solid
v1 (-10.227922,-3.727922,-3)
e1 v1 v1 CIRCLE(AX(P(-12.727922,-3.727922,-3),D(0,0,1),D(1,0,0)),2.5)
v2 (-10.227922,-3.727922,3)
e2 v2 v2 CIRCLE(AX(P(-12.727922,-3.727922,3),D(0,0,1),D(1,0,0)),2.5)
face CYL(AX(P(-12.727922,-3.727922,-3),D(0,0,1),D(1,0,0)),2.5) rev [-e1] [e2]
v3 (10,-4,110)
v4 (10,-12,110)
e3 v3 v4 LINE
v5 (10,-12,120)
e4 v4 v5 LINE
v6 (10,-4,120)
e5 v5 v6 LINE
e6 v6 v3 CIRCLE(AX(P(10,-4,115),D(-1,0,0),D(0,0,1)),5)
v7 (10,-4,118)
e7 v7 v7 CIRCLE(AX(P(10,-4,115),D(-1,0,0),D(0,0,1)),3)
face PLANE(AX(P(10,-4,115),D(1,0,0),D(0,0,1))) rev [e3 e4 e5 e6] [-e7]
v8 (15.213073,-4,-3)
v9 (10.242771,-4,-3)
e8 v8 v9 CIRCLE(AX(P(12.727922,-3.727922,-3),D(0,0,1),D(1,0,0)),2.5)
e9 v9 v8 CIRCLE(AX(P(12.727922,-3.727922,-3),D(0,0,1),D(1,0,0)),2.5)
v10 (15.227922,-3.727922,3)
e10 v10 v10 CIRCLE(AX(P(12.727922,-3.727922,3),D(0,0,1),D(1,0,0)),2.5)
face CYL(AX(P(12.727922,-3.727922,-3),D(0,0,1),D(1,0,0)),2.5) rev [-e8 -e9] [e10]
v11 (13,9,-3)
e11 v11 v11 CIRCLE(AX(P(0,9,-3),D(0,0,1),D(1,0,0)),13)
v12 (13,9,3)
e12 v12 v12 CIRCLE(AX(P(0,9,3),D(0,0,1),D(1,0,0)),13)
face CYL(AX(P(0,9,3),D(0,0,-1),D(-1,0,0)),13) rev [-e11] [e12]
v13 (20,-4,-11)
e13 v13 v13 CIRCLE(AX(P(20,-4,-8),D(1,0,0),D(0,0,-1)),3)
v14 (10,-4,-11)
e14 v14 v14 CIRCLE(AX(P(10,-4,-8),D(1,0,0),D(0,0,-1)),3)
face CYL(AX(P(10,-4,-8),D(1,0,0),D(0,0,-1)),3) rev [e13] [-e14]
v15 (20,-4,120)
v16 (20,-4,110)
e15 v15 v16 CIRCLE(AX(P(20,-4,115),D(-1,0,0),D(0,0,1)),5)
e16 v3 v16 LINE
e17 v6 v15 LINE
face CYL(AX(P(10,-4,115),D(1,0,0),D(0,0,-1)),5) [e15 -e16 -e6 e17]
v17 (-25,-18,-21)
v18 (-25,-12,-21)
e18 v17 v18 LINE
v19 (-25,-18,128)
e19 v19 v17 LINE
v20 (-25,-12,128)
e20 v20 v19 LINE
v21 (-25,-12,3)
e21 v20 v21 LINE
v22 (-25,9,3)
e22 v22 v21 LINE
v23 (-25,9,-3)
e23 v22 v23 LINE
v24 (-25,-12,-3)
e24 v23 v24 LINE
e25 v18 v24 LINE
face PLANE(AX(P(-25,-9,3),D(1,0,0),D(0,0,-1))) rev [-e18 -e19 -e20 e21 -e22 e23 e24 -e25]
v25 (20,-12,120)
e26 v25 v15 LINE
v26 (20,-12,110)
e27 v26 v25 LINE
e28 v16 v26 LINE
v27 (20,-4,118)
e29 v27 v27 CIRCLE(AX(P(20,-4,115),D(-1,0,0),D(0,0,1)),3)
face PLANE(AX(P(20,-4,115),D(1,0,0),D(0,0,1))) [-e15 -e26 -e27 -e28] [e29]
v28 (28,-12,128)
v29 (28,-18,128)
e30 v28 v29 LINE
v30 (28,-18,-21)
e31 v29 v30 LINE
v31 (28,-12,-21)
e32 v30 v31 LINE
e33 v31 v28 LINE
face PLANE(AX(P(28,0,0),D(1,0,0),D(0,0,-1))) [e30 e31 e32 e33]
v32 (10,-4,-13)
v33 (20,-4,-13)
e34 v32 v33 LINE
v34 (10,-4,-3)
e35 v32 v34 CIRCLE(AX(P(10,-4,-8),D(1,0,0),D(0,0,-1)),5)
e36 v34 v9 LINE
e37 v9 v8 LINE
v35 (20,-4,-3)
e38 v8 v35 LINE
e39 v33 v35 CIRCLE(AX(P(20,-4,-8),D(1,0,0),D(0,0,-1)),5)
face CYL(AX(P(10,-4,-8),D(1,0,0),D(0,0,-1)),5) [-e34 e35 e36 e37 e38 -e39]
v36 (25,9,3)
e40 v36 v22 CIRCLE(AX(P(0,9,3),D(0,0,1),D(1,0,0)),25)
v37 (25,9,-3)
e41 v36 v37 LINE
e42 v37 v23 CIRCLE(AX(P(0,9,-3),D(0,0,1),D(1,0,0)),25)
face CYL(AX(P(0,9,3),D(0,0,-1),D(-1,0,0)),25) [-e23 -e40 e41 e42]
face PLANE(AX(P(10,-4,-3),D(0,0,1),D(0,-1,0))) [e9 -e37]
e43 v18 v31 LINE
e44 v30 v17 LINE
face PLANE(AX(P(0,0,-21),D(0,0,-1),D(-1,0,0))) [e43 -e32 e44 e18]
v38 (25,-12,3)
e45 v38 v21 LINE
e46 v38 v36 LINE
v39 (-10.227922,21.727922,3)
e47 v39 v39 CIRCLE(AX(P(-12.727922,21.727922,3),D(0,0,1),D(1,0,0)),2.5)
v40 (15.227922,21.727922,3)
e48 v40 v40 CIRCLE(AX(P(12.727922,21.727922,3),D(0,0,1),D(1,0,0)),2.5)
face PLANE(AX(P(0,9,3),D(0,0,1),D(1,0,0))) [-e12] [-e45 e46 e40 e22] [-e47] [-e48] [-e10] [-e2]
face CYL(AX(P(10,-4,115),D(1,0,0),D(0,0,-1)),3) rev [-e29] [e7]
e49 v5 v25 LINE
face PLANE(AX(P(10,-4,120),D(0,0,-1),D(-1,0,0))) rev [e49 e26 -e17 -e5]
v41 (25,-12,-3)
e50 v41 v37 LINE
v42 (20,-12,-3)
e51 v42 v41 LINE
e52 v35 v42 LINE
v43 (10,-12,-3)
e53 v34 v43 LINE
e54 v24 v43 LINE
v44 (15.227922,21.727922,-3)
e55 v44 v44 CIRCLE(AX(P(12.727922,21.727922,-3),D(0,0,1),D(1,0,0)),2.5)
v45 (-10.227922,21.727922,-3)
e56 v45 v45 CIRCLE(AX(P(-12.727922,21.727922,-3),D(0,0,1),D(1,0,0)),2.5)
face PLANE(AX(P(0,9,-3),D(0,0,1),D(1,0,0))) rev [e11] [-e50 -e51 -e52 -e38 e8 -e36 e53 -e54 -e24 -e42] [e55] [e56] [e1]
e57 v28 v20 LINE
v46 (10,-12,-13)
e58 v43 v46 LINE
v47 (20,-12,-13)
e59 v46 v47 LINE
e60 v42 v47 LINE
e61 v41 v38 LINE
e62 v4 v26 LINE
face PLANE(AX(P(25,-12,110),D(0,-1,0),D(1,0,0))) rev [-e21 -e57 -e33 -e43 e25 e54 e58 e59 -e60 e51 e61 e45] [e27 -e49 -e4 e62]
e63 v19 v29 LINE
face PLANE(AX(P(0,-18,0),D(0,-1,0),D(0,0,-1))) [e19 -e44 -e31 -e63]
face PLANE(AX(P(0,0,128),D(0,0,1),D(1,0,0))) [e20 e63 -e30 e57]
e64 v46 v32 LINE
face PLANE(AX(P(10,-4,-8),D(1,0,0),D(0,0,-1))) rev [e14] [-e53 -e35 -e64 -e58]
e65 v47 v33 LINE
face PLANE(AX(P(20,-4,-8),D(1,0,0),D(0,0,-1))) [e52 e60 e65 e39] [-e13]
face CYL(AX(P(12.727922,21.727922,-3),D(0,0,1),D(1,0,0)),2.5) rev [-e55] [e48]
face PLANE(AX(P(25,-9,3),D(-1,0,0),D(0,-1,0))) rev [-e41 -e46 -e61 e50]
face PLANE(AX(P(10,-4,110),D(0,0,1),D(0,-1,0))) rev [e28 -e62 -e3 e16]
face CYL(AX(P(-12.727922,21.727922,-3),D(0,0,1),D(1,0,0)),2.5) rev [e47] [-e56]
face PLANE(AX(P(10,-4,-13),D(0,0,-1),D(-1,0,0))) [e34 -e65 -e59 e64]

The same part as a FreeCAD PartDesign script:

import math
import FreeCAD as App
import Part
import Sketcher

doc = App.newDocument("Part")
body = doc.addObject("PartDesign::Body", "Body")

# Sketch on XY plane
sketch1 = body.newObject("Sketcher::SketchObject", "Sketch")
sketch1.AttachmentSupport = (doc.getObject("XY_Plane"), [""])
sketch1.MapMode = "FlatFace"
sketch1.addGeometry([
    Part.LineSegment(App.Vector(-25, -9, 0), App.Vector(25, -9, 0)),  # 0
    Part.LineSegment(App.Vector(25, -9, 0), App.Vector(25, 9, 0)),  # 1
    Part.ArcOfCircle(Part.Circle(App.Vector(0, 9, 0), App.Vector(0, 0, 1), 25), math.radians(0), math.radians(180)),  # 2
    Part.LineSegment(App.Vector(-25, 9, 0), App.Vector(-25, -9, 0)),  # 3
    Part.Circle(App.Vector(0, 9, 0), App.Vector(0, 0, 1), 13),  # 4
], False)
sketch1.addConstraint([
    Sketcher.Constraint("Coincident", 0, 2, 1, 1),
    Sketcher.Constraint("Tangent", 1, 2, 2, 1),
    Sketcher.Constraint("Tangent", 2, 2, 3, 1),
    Sketcher.Constraint("Coincident", 3, 2, 0, 1),
    Sketcher.Constraint("Horizontal", 0),
    Sketcher.Constraint("Vertical", 1),
    Sketcher.Constraint("Vertical", 3),
    Sketcher.Constraint("Coincident", 4, 3, 2, 3),
    Sketcher.Constraint("Symmetric", 0, 2, 2, 2, -1, 1),
    Sketcher.Constraint("Diameter", 4, 26.0),
    Sketcher.Constraint("Radius", 2, 25.0),
    Sketcher.Constraint("DistanceY", 1, 1, 1, 2, 18.0),
])
pad1 = body.newObject("PartDesign::Pad", "Pad")
pad1.Profile = sketch1
pad1.Length = 6
pad1.Midplane = True

# Sketch on XZ plane
sketch2 = body.newObject("Sketcher::SketchObject", "Sketch001")
sketch2.AttachmentSupport = (doc.getObject("XZ_Plane"), [""])
sketch2.MapMode = "FlatFace"
sketch2.AttachmentOffset = App.Placement(App.Vector(0, 0, 9), App.Rotation())
sketch2.addGeometry([
    Part.LineSegment(App.Vector(-25, 3, 0), App.Vector(-25, -3, 0)),
    Part.LineSegment(App.Vector(-25, -3, 0), App.Vector(25, -3, 0)),
    Part.LineSegment(App.Vector(25, -3, 0), App.Vector(25, 3, 0)),
    Part.LineSegment(App.Vector(25, 3, 0), App.Vector(-25, 3, 0)),
], False)
sketch2.addConstraint([
    Sketcher.Constraint("Coincident", 0, 2, 1, 1),
    Sketcher.Constraint("Coincident", 1, 2, 2, 1),
    Sketcher.Constraint("Coincident", 2, 2, 3, 1),
    Sketcher.Constraint("Coincident", 3, 2, 0, 1),
    Sketcher.Constraint("Vertical", 0),
    Sketcher.Constraint("Horizontal", 1),
    Sketcher.Constraint("Vertical", 2),
    Sketcher.Constraint("Horizontal", 3),
    Sketcher.Constraint("Symmetric", 0, 2, 2, 2, -1, 1),
    Sketcher.Constraint("DistanceX", 1, 1, 1, 2, 50.0),
    Sketcher.Constraint("DistanceY", 0, 2, 0, 1, 6.0),
])
pad2 = body.newObject("PartDesign::Pad", "Pad001")
pad2.Profile = sketch2
pad2.Length = 9
body2 = doc.addObject("PartDesign::Body", "Body001")

# Sketch on XY plane
sketch3 = body2.newObject("Sketcher::SketchObject", "Sketch002")
sketch3.AttachmentSupport = (doc.getObject("XY_Plane001"), [""])
sketch3.MapMode = "FlatFace"
sketch3.AttachmentOffset = App.Placement(App.Vector(0, 0, 3), App.Rotation())
sketch3.addGeometry([
    Part.LineSegment(App.Vector(-25, -12, 0), App.Vector(-25, -18, 0)),
    Part.LineSegment(App.Vector(-25, -18, 0), App.Vector(25, -18, 0)),
    Part.LineSegment(App.Vector(25, -18, 0), App.Vector(25, -12, 0)),
    Part.LineSegment(App.Vector(25, -12, 0), App.Vector(-25, -12, 0)),
], False)
sketch3.addConstraint([
    Sketcher.Constraint("Coincident", 0, 2, 1, 1),
    Sketcher.Constraint("Coincident", 1, 2, 2, 1),
    Sketcher.Constraint("Coincident", 2, 2, 3, 1),
    Sketcher.Constraint("Coincident", 3, 2, 0, 1),
    Sketcher.Constraint("Vertical", 0),
    Sketcher.Constraint("Horizontal", 1),
    Sketcher.Constraint("Vertical", 2),
    Sketcher.Constraint("Horizontal", 3),
    Sketcher.Constraint("DistanceX", 1, 1, 1, 2, 50.0),
    Sketcher.Constraint("DistanceY", 0, 2, 0, 1, 6.0),
    Sketcher.Constraint("DistanceX", 0, 2, -1, 1, 25.0),
    Sketcher.Constraint("DistanceY", 0, 2, -1, 1, 18.0),
])
pad3 = body2.newObject("PartDesign::Pad", "Pad002")
pad3.Profile = sketch3
pad3.Length = 107
doc.recompute()

boolean = body.newObject("PartDesign::Boolean", "Boolean")
boolean.Type = "Fuse"
boolean.addObjects([body2])

# Sketch on XY plane
sketch4 = body.newObject("Sketcher::SketchObject", "Sketch003")
sketch4.AttachmentSupport = (doc.getObject("XY_Plane"), [""])
sketch4.MapMode = "FlatFace"
sketch4.AttachmentOffset = App.Placement(App.Vector(0, 0, 3), App.Rotation())
sketch4.addGeometry([
    Part.LineSegment(App.Vector(25, -12, 0), App.Vector(25, -18, 0)),
    Part.LineSegment(App.Vector(25, -18, 0), App.Vector(-25, -18, 0)),
    Part.LineSegment(App.Vector(-25, -18, 0), App.Vector(-25, -12, 0)),
    Part.LineSegment(App.Vector(-25, -12, 0), App.Vector(25, -12, 0)),
], False)
sketch4.addConstraint([
    Sketcher.Constraint("Coincident", 0, 2, 1, 1),
    Sketcher.Constraint("Coincident", 1, 2, 2, 1),
    Sketcher.Constraint("Coincident", 2, 2, 3, 1),
    Sketcher.Constraint("Coincident", 3, 2, 0, 1),
    Sketcher.Constraint("Vertical", 0),
    Sketcher.Constraint("Horizontal", 1),
    Sketcher.Constraint("Vertical", 2),
    Sketcher.Constraint("Horizontal", 3),
    Sketcher.Constraint("DistanceX", 1, 2, 1, 1, 50.0),
    Sketcher.Constraint("DistanceY", 0, 2, 0, 1, 6.0),
    Sketcher.Constraint("DistanceX", -1, 1, 0, 2, 25.0),
    Sketcher.Constraint("DistanceY", 0, 2, -1, 1, 18.0),
])
pad4 = body.newObject("PartDesign::Pad", "Pad003")
pad4.Profile = sketch4
pad4.Length = 6
pad4.Reversed = True

# Sketch on XY plane
sketch5 = body.newObject("Sketcher::SketchObject", "Sketch004")
sketch5.AttachmentSupport = (doc.getObject("XY_Plane"), [""])
sketch5.MapMode = "FlatFace"
sketch5.AttachmentOffset = App.Placement(App.Vector(0, 0, 3), App.Rotation())
sketch5.addGeometry([
    Part.Circle(App.Vector(12.7, 21.7, 0), App.Vector(0, 0, 1), 2.5),
    Part.Circle(App.Vector(12.7, -3.7, 0), App.Vector(0, 0, 1), 2.5),
    Part.Circle(App.Vector(-12.7, -3.7, 0), App.Vector(0, 0, 1), 2.5),
    Part.Circle(App.Vector(-12.7, 21.7, 0), App.Vector(0, 0, 1), 2.5),
], False)
sketch5.addConstraint([
    Sketcher.Constraint("Equal", 0, 1),
    Sketcher.Constraint("Equal", 1, 2),
    Sketcher.Constraint("Equal", 2, 3),
    Sketcher.Constraint("Symmetric", 1, 3, 2, 3, -2),
    Sketcher.Constraint("Symmetric", 0, 3, 3, 3, -2),
    Sketcher.Constraint("Vertical", 0, 3, 1, 3),
    Sketcher.Constraint("Diameter", 0, 5.0),
    Sketcher.Constraint("DistanceX", -1, 1, 0, 3, 12.727922),
    Sketcher.Constraint("DistanceY", -1, 1, 0, 3, 21.727922),
    Sketcher.Constraint("DistanceY", 1, 3, -1, 1, 3.727922),
])
pocket1 = body.newObject("PartDesign::Pocket", "Pocket")
pocket1.Profile = sketch5
pocket1.Type = "ThroughAll"

# Sketch on XY plane
sketch6 = body.newObject("Sketcher::SketchObject", "Sketch005")
sketch6.AttachmentSupport = (doc.getObject("XY_Plane"), [""])
sketch6.MapMode = "FlatFace"
sketch6.AttachmentOffset = App.Placement(App.Vector(0, 0, 110), App.Rotation())
sketch6.addGeometry([
    Part.LineSegment(App.Vector(-25, -12, 0), App.Vector(-25, -18, 0)),
    Part.LineSegment(App.Vector(-25, -18, 0), App.Vector(25, -18, 0)),
    Part.LineSegment(App.Vector(25, -18, 0), App.Vector(25, -12, 0)),
    Part.LineSegment(App.Vector(25, -12, 0), App.Vector(-25, -12, 0)),
], False)
sketch6.addConstraint([
    Sketcher.Constraint("Coincident", 0, 2, 1, 1),
    Sketcher.Constraint("Coincident", 1, 2, 2, 1),
    Sketcher.Constraint("Coincident", 2, 2, 3, 1),
    Sketcher.Constraint("Coincident", 3, 2, 0, 1),
    Sketcher.Constraint("Vertical", 0),
    Sketcher.Constraint("Horizontal", 1),
    Sketcher.Constraint("Vertical", 2),
    Sketcher.Constraint("Horizontal", 3),
    Sketcher.Constraint("DistanceX", 1, 1, 1, 2, 50.0),
    Sketcher.Constraint("DistanceY", 0, 2, 0, 1, 6.0),
    Sketcher.Constraint("DistanceX", 0, 2, -1, 1, 25.0),
    Sketcher.Constraint("DistanceY", 0, 2, -1, 1, 18.0),
])
pad5 = body.newObject("PartDesign::Pad", "Pad004")
pad5.Profile = sketch6
pad5.Length = 18

# Sketch on XY plane
sketch7 = body.newObject("Sketcher::SketchObject", "Sketch006")
sketch7.AttachmentSupport = (doc.getObject("XY_Plane"), [""])
sketch7.MapMode = "FlatFace"
sketch7.AttachmentOffset = App.Placement(App.Vector(0, 0, -3), App.Rotation())
sketch7.addGeometry([
    Part.LineSegment(App.Vector(25, -12, 0), App.Vector(25, -18, 0)),
    Part.LineSegment(App.Vector(25, -18, 0), App.Vector(-25, -18, 0)),
    Part.LineSegment(App.Vector(-25, -18, 0), App.Vector(-25, -12, 0)),
    Part.LineSegment(App.Vector(-25, -12, 0), App.Vector(25, -12, 0)),
], False)
sketch7.addConstraint([
    Sketcher.Constraint("Coincident", 0, 2, 1, 1),
    Sketcher.Constraint("Coincident", 1, 2, 2, 1),
    Sketcher.Constraint("Coincident", 2, 2, 3, 1),
    Sketcher.Constraint("Coincident", 3, 2, 0, 1),
    Sketcher.Constraint("Vertical", 0),
    Sketcher.Constraint("Horizontal", 1),
    Sketcher.Constraint("Vertical", 2),
    Sketcher.Constraint("Horizontal", 3),
    Sketcher.Constraint("DistanceX", 1, 2, 1, 1, 50.0),
    Sketcher.Constraint("DistanceY", 0, 2, 0, 1, 6.0),
    Sketcher.Constraint("DistanceX", -1, 1, 0, 2, 25.0),
    Sketcher.Constraint("DistanceY", 0, 2, -1, 1, 18.0),
])
pad6 = body.newObject("PartDesign::Pad", "Pad005")
pad6.Profile = sketch7
pad6.Length = 18
pad6.Reversed = True

# Sketch on YZ plane
sketch8 = body.newObject("Sketcher::SketchObject", "Sketch007")
sketch8.AttachmentSupport = (doc.getObject("YZ_Plane"), [""])
sketch8.MapMode = "FlatFace"
sketch8.AttachmentOffset = App.Placement(App.Vector(0, 0, 20), App.Rotation())
sketch8.addGeometry([
    Part.LineSegment(App.Vector(-4, -3, 0), App.Vector(-12, -3, 0)),  # 0
    Part.LineSegment(App.Vector(-12, -3, 0), App.Vector(-12, -13, 0)),  # 1
    Part.LineSegment(App.Vector(-12, -13, 0), App.Vector(-4, -13, 0)),  # 2
    Part.ArcOfCircle(Part.Circle(App.Vector(-4, -8, 0), App.Vector(0, 0, 1), 5), math.radians(-90), math.radians(90)),  # 3
    Part.Circle(App.Vector(-4, -8, 0), App.Vector(0, 0, 1), 3),  # 4
], False)
sketch8.addConstraint([
    Sketcher.Constraint("Coincident", 0, 2, 1, 1),
    Sketcher.Constraint("Coincident", 1, 2, 2, 1),
    Sketcher.Constraint("Tangent", 2, 2, 3, 1),
    Sketcher.Constraint("Tangent", 3, 2, 0, 1),
    Sketcher.Constraint("Horizontal", 0),
    Sketcher.Constraint("Vertical", 1),
    Sketcher.Constraint("Horizontal", 2),
    Sketcher.Constraint("Coincident", 4, 3, 3, 3),
    Sketcher.Constraint("Diameter", 4, 6.0),
    Sketcher.Constraint("Radius", 3, 5.0),
    Sketcher.Constraint("DistanceX", 0, 2, 0, 1, 8.0),
    Sketcher.Constraint("DistanceX", 3, 3, -1, 1, 4.0),
    Sketcher.Constraint("DistanceY", 3, 3, -1, 1, 8.0),
])
pad7 = body.newObject("PartDesign::Pad", "Pad006")
pad7.Profile = sketch8
pad7.Length = 10
pad7.Reversed = True
doc.recompute()

datumplane = body.newObject("PartDesign::Plane", "DatumPlane")
datumplane.AttachmentSupport = (doc.getObject("XY_Plane"), [""])
datumplane.MapMode = "FlatFace"
datumplane.AttachmentOffset = App.Placement(App.Vector(0, 0, 53.5), App.Rotation())
mirrored = body.newObject("PartDesign::Mirrored", "Mirrored")
mirrored.Originals = [pad7]
mirrored.MirrorPlane = (datumplane, [""])
body.Tip = mirrored

# Sketch on YZ plane
sketch9 = body.newObject("Sketcher::SketchObject", "Sketch008")
sketch9.AttachmentSupport = (doc.getObject("YZ_Plane"), [""])
sketch9.MapMode = "FlatFace"
sketch9.AttachmentOffset = App.Placement(App.Vector(0, 0, 25), App.Rotation())
sketch9.addGeometry([
    Part.LineSegment(App.Vector(-18, 128, 0), App.Vector(-18, -21, 0)),
    Part.LineSegment(App.Vector(-18, -21, 0), App.Vector(-12, -21, 0)),
    Part.LineSegment(App.Vector(-12, -21, 0), App.Vector(-12, 128, 0)),
    Part.LineSegment(App.Vector(-12, 128, 0), App.Vector(-18, 128, 0)),
], False)
sketch9.addConstraint([
    Sketcher.Constraint("Coincident", 0, 2, 1, 1),
    Sketcher.Constraint("Coincident", 1, 2, 2, 1),
    Sketcher.Constraint("Coincident", 2, 2, 3, 1),
    Sketcher.Constraint("Coincident", 3, 2, 0, 1),
    Sketcher.Constraint("Vertical", 0),
    Sketcher.Constraint("Horizontal", 1),
    Sketcher.Constraint("Vertical", 2),
    Sketcher.Constraint("Horizontal", 3),
    Sketcher.Constraint("DistanceX", 1, 1, 1, 2, 6.0),
    Sketcher.Constraint("DistanceY", 0, 2, 0, 1, 149.0),
    Sketcher.Constraint("DistanceX", 0, 2, -1, 1, 18.0),
    Sketcher.Constraint("DistanceY", 0, 2, -1, 1, 21.0),
])
pad8 = body.newObject("PartDesign::Pad", "Pad007")
pad8.Profile = sketch9
pad8.Length = 3

doc.recompute()
